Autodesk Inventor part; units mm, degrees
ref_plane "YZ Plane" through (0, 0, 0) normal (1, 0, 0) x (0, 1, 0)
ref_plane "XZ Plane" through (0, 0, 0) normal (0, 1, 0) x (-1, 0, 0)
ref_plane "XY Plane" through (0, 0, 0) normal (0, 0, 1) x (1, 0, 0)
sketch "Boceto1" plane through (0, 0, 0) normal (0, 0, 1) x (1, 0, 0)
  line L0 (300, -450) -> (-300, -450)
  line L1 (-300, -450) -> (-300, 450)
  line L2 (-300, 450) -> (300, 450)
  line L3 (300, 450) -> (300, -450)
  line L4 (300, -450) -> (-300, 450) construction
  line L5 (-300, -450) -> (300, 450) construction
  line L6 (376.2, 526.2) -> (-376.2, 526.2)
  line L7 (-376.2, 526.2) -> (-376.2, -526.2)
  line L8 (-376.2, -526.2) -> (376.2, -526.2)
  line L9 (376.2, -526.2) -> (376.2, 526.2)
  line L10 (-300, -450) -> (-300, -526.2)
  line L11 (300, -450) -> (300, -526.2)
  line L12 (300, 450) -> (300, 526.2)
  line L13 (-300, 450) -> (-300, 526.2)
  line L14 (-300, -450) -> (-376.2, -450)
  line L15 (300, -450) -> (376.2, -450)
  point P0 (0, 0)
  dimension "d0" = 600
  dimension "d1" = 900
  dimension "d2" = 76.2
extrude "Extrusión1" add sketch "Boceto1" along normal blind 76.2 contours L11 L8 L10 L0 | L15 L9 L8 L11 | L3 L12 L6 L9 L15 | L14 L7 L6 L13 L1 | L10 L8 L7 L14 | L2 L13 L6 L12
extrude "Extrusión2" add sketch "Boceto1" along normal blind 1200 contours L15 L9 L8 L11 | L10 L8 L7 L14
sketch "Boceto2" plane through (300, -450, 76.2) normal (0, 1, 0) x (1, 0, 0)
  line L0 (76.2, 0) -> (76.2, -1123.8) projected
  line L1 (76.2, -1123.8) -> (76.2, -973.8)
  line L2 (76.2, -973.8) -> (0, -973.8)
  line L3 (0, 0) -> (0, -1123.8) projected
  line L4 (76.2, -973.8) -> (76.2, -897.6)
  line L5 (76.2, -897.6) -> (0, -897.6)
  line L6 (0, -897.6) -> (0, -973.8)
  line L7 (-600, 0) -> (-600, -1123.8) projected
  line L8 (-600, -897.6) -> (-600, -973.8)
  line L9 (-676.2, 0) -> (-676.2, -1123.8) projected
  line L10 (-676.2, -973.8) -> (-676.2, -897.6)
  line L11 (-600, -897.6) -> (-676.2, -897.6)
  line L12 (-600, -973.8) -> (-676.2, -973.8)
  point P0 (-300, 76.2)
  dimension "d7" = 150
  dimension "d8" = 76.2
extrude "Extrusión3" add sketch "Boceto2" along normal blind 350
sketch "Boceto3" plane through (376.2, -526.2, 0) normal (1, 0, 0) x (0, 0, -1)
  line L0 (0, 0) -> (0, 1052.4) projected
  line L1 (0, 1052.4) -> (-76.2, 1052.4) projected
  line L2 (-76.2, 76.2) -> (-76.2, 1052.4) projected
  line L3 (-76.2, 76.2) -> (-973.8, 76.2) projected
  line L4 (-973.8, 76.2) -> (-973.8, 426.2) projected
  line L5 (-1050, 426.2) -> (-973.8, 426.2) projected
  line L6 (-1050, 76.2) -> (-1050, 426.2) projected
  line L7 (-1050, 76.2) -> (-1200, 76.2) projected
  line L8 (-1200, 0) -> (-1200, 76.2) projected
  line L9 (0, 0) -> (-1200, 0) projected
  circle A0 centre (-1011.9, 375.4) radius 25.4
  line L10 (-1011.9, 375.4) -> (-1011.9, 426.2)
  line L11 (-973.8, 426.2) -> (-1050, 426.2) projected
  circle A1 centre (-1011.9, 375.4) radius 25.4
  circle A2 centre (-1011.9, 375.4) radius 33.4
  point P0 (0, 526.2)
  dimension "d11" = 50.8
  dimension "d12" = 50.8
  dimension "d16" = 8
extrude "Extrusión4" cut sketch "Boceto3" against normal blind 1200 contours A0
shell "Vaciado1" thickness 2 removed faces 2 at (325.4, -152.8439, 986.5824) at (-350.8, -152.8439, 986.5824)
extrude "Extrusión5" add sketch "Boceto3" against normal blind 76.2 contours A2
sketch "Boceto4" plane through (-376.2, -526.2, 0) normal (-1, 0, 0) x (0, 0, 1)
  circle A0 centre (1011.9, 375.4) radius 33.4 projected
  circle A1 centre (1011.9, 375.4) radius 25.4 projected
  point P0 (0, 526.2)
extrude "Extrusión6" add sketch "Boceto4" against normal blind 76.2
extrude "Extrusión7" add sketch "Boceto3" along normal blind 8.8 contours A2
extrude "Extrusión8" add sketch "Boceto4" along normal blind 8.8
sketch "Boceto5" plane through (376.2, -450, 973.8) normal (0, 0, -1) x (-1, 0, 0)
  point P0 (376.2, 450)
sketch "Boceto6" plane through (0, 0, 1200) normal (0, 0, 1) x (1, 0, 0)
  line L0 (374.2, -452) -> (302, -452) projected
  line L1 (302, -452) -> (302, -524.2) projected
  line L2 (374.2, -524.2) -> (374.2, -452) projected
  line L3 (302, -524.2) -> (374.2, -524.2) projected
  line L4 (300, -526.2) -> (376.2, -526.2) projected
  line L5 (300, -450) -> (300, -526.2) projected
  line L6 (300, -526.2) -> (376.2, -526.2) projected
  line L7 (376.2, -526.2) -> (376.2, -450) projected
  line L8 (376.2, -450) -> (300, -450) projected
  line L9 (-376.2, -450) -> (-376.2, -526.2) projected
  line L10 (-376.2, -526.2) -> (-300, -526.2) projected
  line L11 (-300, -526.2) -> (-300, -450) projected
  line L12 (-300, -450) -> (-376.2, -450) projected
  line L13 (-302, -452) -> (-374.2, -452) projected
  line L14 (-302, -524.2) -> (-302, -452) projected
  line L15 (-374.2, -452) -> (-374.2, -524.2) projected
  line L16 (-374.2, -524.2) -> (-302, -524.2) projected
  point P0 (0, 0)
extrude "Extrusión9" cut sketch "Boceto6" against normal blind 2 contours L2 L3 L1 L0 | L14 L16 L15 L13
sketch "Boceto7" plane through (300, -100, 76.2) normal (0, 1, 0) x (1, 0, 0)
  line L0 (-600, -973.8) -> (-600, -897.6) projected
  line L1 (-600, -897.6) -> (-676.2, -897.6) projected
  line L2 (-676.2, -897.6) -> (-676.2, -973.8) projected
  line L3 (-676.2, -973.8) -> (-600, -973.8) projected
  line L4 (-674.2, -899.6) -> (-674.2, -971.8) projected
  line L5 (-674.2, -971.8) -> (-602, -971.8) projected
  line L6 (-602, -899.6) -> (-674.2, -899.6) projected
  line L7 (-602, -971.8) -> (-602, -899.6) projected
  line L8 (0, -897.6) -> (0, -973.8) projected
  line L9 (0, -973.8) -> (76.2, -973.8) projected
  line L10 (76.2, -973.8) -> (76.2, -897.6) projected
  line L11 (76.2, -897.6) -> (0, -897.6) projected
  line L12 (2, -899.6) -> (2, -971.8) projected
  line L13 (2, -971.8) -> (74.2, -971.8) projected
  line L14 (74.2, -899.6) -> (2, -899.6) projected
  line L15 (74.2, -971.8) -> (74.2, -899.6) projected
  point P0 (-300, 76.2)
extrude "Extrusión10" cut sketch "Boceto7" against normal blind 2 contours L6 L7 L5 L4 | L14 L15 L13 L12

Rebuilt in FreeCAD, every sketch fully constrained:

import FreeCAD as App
import Part
import Sketcher
from FreeCAD import Vector
Q = App.Units.Quantity


def faces_at(feature, points):
    """Names of the faces that lie closest to the given points."""
    faces = feature.Shape.Faces
    near = lambda p: min(range(len(faces)), key=lambda i: faces[i].distToShape(Part.Vertex(*p))[0])
    return sorted({f"Face{near(p) + 1}" for p in points})


def add_polygon(sketch, points):
    """Adds a closed chain of lines whose ends are joined by coincident constraints."""
    first, n = sketch.GeometryCount, len(points)
    for a, b in zip(points, points[1:] + points[:1]):
        sketch.addGeometry(Part.LineSegment(App.Vector(*a, 0), App.Vector(*b, 0)), False)
    for i in range(n):
        sketch.addConstraint(Sketcher.Constraint("Coincident", first + i, 2, first + (i + 1) % n, 1))

doc = App.newDocument("Part")
body = doc.addObject("PartDesign::Body", "Body")

# Sketch on XY plane
sketch1 = doc.addObject("Sketcher::SketchObject", "Sketch")
body.addObject(sketch1)
sketch1.AttachmentSupport = (doc.XY_Plane, [""])
sketch1.MapMode = "FlatFace"
add_polygon(sketch1, [(376.2, -526.2), (376.2, 526.2), (-376.2, 526.2), (-376.2, -526.2)])  # lines 0-3
add_polygon(sketch1, [(300, -450), (-300, -450), (-300, 450), (300, 450)])  # lines 4-7
sketch1.addConstraint([
    Sketcher.Constraint("Vertical", 0),
    Sketcher.Constraint("Horizontal", 1),
    Sketcher.Constraint("Vertical", 2),
    Sketcher.Constraint("Horizontal", 3),
    Sketcher.Constraint("Horizontal", 4),
    Sketcher.Constraint("Vertical", 5),
    Sketcher.Constraint("Horizontal", 6),
    Sketcher.Constraint("Vertical", 7),
    Sketcher.Constraint("Symmetric", 0, 2, 2, 2, -1, 1),
    Sketcher.Constraint("Symmetric", 4, 2, 6, 2, -1, 1),
    Sketcher.Constraint("DistanceX", 4, 2, 4, 1, Q("600 mm")),
    Sketcher.Constraint("DistanceY", 5, 1, 5, 2, Q("900 mm")),
    Sketcher.Constraint("DistanceX", 2, 2, 4, 2, Q("76.2 mm")),
    Sketcher.Constraint("DistanceY", 2, 2, 4, 2, Q("76.2 mm")),
])
pad1 = doc.addObject("PartDesign::Pad", "Pad")
body.addObject(pad1)
pad1.Profile = sketch1
pad1.Length = 76.2

# Sketch on XY plane
sketch2 = doc.addObject("Sketcher::SketchObject", "Sketch001")
body.addObject(sketch2)
sketch2.AttachmentSupport = (doc.XY_Plane, [""])
sketch2.MapMode = "FlatFace"
add_polygon(sketch2, [(376.2, -450), (300, -450), (300, -526.2), (376.2, -526.2)])  # lines 0-3
add_polygon(sketch2, [(-300, -526.2), (-300, -450), (-376.2, -450), (-376.2, -526.2)])  # lines 4-7
sketch2.addConstraint([
    Sketcher.Constraint("Horizontal", 0),
    Sketcher.Constraint("Vertical", 1),
    Sketcher.Constraint("Horizontal", 2),
    Sketcher.Constraint("Vertical", 3),
    Sketcher.Constraint("Vertical", 4),
    Sketcher.Constraint("Horizontal", 5),
    Sketcher.Constraint("Vertical", 6),
    Sketcher.Constraint("Horizontal", 7),
    Sketcher.Constraint("Symmetric", 0, 2, 4, 2, -2),
    Sketcher.Constraint("Symmetric", 2, 2, 6, 2, -2),
    Sketcher.Constraint("Equal", 7, 1),
    Sketcher.Constraint("DistanceX", 0, 2, 0, 1, Q("76.2 mm")),
    Sketcher.Constraint("DistanceX", 4, 2, 0, 2, Q("600 mm")),
    Sketcher.Constraint("DistanceY", 0, 2, -1, 1, Q("450 mm")),
])
pad2 = doc.addObject("PartDesign::Pad", "Pad001")
body.addObject(pad2)
pad2.Profile = sketch2
pad2.Length = 1200

# Sketch on XZ plane
sketch3 = doc.addObject("Sketcher::SketchObject", "Sketch002")
body.addObject(sketch3)
sketch3.AttachmentSupport = (doc.XZ_Plane, [""])
sketch3.MapMode = "FlatFace"
sketch3.AttachmentOffset = App.Placement(Vector(0, 0, 450), App.Rotation())
add_polygon(sketch3, [(376.2, 1050), (376.2, 973.8), (300, 973.8), (300, 1050)])  # lines 0-3
add_polygon(sketch3, [(-300, 1050), (-300, 973.8), (-376.2, 973.8), (-376.2, 1050)])  # lines 4-7
sketch3.addConstraint([
    Sketcher.Constraint("Vertical", 0),
    Sketcher.Constraint("Horizontal", 1),
    Sketcher.Constraint("Vertical", 2),
    Sketcher.Constraint("Horizontal", 3),
    Sketcher.Constraint("Vertical", 4),
    Sketcher.Constraint("Horizontal", 5),
    Sketcher.Constraint("Vertical", 6),
    Sketcher.Constraint("Horizontal", 7),
    Sketcher.Constraint("Symmetric", 1, 2, 4, 2, -2),
    Sketcher.Constraint("Symmetric", 3, 2, 6, 2, -2),
    Sketcher.Constraint("Equal", 7, 0),
    Sketcher.Constraint("DistanceX", 1, 2, 1, 1, Q("76.2 mm")),
    Sketcher.Constraint("DistanceX", -1, 1, 1, 2, Q("300 mm")),
    Sketcher.Constraint("DistanceY", -1, 1, 2, 2, Q("1050 mm")),
])
pad3 = doc.addObject("PartDesign::Pad", "Pad002")
body.addObject(pad3)
pad3.Profile = sketch3
pad3.Length = 350
pad3.Reversed = True

# Sketch on YZ plane
sketch4 = doc.addObject("Sketcher::SketchObject", "Sketch003")
body.addObject(sketch4)
sketch4.AttachmentSupport = (doc.YZ_Plane, [""])
sketch4.MapMode = "FlatFace"
sketch4.AttachmentOffset = App.Placement(Vector(0, 0, 376.2), App.Rotation())
sketch4.addGeometry(Part.Circle(Vector(-150.8, 1011.9, 0), Vector(0, 0, 1), 25.4), False)
sketch4.addConstraint([
    Sketcher.Constraint("Diameter", 0, Q("50.8 mm")),
    Sketcher.Constraint("DistanceX", 0, 3, -1, 1, Q("150.8 mm")),
    Sketcher.Constraint("DistanceY", -1, 1, 0, 3, Q("1011.9 mm")),
])
pocket1 = doc.addObject("PartDesign::Pocket", "Pocket")
body.addObject(pocket1)
pocket1.Profile = sketch4
pocket1.Length = 1200
doc.recompute()

thickness = doc.addObject("PartDesign::Thickness", "Thickness")
body.addObject(thickness)
thickness.Base = (pocket1, faces_at(pocket1, [(325.4, -152.844, 986.582), (-350.8, -152.844, 986.582)]))
thickness.Value = 2
thickness.Reversed = True
thickness.Join = "Intersection"

# Sketch on YZ plane
sketch5 = doc.addObject("Sketcher::SketchObject", "Sketch004")
body.addObject(sketch5)
sketch5.AttachmentSupport = (doc.YZ_Plane, [""])
sketch5.MapMode = "FlatFace"
sketch5.AttachmentOffset = App.Placement(Vector(0, 0, 376.2), App.Rotation())
sketch5.addGeometry([
    Part.Circle(Vector(-150.8, 1011.9, 0), Vector(0, 0, 1), 33.4),
    Part.Circle(Vector(-150.8, 1011.9, 0), Vector(0, 0, 1), 25.4),
], False)
sketch5.addConstraint([
    Sketcher.Constraint("Coincident", 1, 3, 0, 3),
    Sketcher.Constraint("Diameter", 1, Q("50.8 mm")),
    Sketcher.Constraint("Diameter", 0, Q("66.8 mm")),
    Sketcher.Constraint("DistanceX", 0, 3, -1, 1, Q("150.8 mm")),
    Sketcher.Constraint("DistanceY", -1, 1, 0, 3, Q("1011.9 mm")),
])
pad4 = doc.addObject("PartDesign::Pad", "Pad003")
body.addObject(pad4)
pad4.Profile = sketch5
pad4.Length = 76.2
pad4.Reversed = True

# Sketch on YZ plane
sketch6 = doc.addObject("Sketcher::SketchObject", "Sketch005")
body.addObject(sketch6)
sketch6.AttachmentSupport = (doc.YZ_Plane, [""])
sketch6.MapMode = "FlatFace"
sketch6.AttachmentOffset = App.Placement(Vector(0, 0, -376.2), App.Rotation())
sketch6.addGeometry([
    Part.Circle(Vector(-150.8, 1011.9, 0), Vector(0, 0, 1), 33.4),
    Part.Circle(Vector(-150.8, 1011.9, 0), Vector(0, 0, 1), 25.4),
], False)
sketch6.addConstraint([
    Sketcher.Constraint("Coincident", 1, 3, 0, 3),
    Sketcher.Constraint("Diameter", 0, Q("66.8 mm")),
    Sketcher.Constraint("Diameter", 1, Q("50.8 mm")),
    Sketcher.Constraint("DistanceX", 0, 3, -1, 1, Q("150.8 mm")),
    Sketcher.Constraint("DistanceY", -1, 1, 0, 3, Q("1011.9 mm")),
])
pad5 = doc.addObject("PartDesign::Pad", "Pad004")
body.addObject(pad5)
pad5.Profile = sketch6
pad5.Length = 76.2

# Sketch on YZ plane
sketch7 = doc.addObject("Sketcher::SketchObject", "Sketch006")
body.addObject(sketch7)
sketch7.AttachmentSupport = (doc.YZ_Plane, [""])
sketch7.MapMode = "FlatFace"
sketch7.AttachmentOffset = App.Placement(Vector(0, 0, 376.2), App.Rotation())
sketch7.addGeometry([
    Part.Circle(Vector(-150.8, 1011.9, 0), Vector(0, 0, 1), 33.4),
    Part.Circle(Vector(-150.8, 1011.9, 0), Vector(0, 0, 1), 25.4),
], False)
sketch7.addConstraint([
    Sketcher.Constraint("Coincident", 1, 3, 0, 3),
    Sketcher.Constraint("Diameter", 1, Q("50.8 mm")),
    Sketcher.Constraint("Diameter", 0, Q("66.8 mm")),
    Sketcher.Constraint("DistanceX", 0, 3, -1, 1, Q("150.8 mm")),
    Sketcher.Constraint("DistanceY", -1, 1, 0, 3, Q("1011.9 mm")),
])
pad6 = doc.addObject("PartDesign::Pad", "Pad005")
body.addObject(pad6)
pad6.Profile = sketch7
pad6.Length = 8.8

# Sketch on YZ plane
sketch8 = doc.addObject("Sketcher::SketchObject", "Sketch007")
body.addObject(sketch8)
sketch8.AttachmentSupport = (doc.YZ_Plane, [""])
sketch8.MapMode = "FlatFace"
sketch8.AttachmentOffset = App.Placement(Vector(0, 0, -376.2), App.Rotation())
sketch8.addGeometry([
    Part.Circle(Vector(-150.8, 1011.9, 0), Vector(0, 0, 1), 33.4),
    Part.Circle(Vector(-150.8, 1011.9, 0), Vector(0, 0, 1), 25.4),
], False)
sketch8.addConstraint([
    Sketcher.Constraint("Coincident", 1, 3, 0, 3),
    Sketcher.Constraint("Diameter", 0, Q("66.8 mm")),
    Sketcher.Constraint("Diameter", 1, Q("50.8 mm")),
    Sketcher.Constraint("DistanceX", 0, 3, -1, 1, Q("150.8 mm")),
    Sketcher.Constraint("DistanceY", -1, 1, 0, 3, Q("1011.9 mm")),
])
pad7 = doc.addObject("PartDesign::Pad", "Pad006")
body.addObject(pad7)
pad7.Profile = sketch8
pad7.Length = 8.8
pad7.Reversed = True

# Sketch on XY plane
sketch9 = doc.addObject("Sketcher::SketchObject", "Sketch008")
body.addObject(sketch9)
sketch9.AttachmentSupport = (doc.XY_Plane, [""])
sketch9.MapMode = "FlatFace"
sketch9.AttachmentOffset = App.Placement(Vector(0, 0, 1200), App.Rotation())
add_polygon(sketch9, [(374.2, -524.2), (374.2, -452), (302, -452), (302, -524.2)])  # lines 0-3
add_polygon(sketch9, [(-302, -524.2), (-302, -452), (-374.2, -452), (-374.2, -524.2)])  # lines 4-7
sketch9.addConstraint([
    Sketcher.Constraint("Vertical", 0),
    Sketcher.Constraint("Horizontal", 1),
    Sketcher.Constraint("Vertical", 2),
    Sketcher.Constraint("Horizontal", 3),
    Sketcher.Constraint("Vertical", 4),
    Sketcher.Constraint("Horizontal", 5),
    Sketcher.Constraint("Vertical", 6),
    Sketcher.Constraint("Horizontal", 7),
    Sketcher.Constraint("Symmetric", 1, 2, 4, 2, -2),
    Sketcher.Constraint("Symmetric", 3, 2, 6, 2, -2),
    Sketcher.Constraint("Equal", 7, 0),
    Sketcher.Constraint("DistanceX", 1, 2, 1, 1, Q("72.2 mm")),
    Sketcher.Constraint("DistanceY", 0, 2, -1, 1, Q("452 mm")),
    Sketcher.Constraint("DistanceX", -1, 1, 1, 2, Q("302 mm")),
])
pocket2 = doc.addObject("PartDesign::Pocket", "Pocket001")
body.addObject(pocket2)
pocket2.Profile = sketch9
pocket2.Length = 2

# Sketch on XZ plane
sketch10 = doc.addObject("Sketcher::SketchObject", "Sketch009")
body.addObject(sketch10)
sketch10.AttachmentSupport = (doc.XZ_Plane, [""])
sketch10.MapMode = "FlatFace"
sketch10.AttachmentOffset = App.Placement(Vector(0, 0, 100), App.Rotation())
add_polygon(sketch10, [(-302, 975.8), (-374.2, 975.8), (-374.2, 1048), (-302, 1048)])  # lines 0-3
add_polygon(sketch10, [(374.2, 975.8), (302, 975.8), (302, 1048), (374.2, 1048)])  # lines 4-7
sketch10.addConstraint([
    Sketcher.Constraint("Horizontal", 0),
    Sketcher.Constraint("Vertical", 1),
    Sketcher.Constraint("Horizontal", 2),
    Sketcher.Constraint("Vertical", 3),
    Sketcher.Constraint("Horizontal", 4),
    Sketcher.Constraint("Vertical", 5),
    Sketcher.Constraint("Horizontal", 6),
    Sketcher.Constraint("Vertical", 7),
    Sketcher.Constraint("Symmetric", 3, 2, 4, 2, -2),
    Sketcher.Constraint("Symmetric", 1, 2, 6, 2, -2),
    Sketcher.Constraint("Equal", 6, 1),
    Sketcher.Constraint("DistanceX", 0, 2, 0, 1, Q("72.2 mm")),
    Sketcher.Constraint("DistanceY", -1, 1, 1, 2, Q("1048 mm")),
    Sketcher.Constraint("DistanceX", 2, 2, -1, 1, Q("302 mm")),
])
pocket3 = doc.addObject("PartDesign::Pocket", "Pocket002")
body.addObject(pocket3)
pocket3.Profile = sketch10
pocket3.Length = 2
pocket3.Reversed = True

doc.recompute()
